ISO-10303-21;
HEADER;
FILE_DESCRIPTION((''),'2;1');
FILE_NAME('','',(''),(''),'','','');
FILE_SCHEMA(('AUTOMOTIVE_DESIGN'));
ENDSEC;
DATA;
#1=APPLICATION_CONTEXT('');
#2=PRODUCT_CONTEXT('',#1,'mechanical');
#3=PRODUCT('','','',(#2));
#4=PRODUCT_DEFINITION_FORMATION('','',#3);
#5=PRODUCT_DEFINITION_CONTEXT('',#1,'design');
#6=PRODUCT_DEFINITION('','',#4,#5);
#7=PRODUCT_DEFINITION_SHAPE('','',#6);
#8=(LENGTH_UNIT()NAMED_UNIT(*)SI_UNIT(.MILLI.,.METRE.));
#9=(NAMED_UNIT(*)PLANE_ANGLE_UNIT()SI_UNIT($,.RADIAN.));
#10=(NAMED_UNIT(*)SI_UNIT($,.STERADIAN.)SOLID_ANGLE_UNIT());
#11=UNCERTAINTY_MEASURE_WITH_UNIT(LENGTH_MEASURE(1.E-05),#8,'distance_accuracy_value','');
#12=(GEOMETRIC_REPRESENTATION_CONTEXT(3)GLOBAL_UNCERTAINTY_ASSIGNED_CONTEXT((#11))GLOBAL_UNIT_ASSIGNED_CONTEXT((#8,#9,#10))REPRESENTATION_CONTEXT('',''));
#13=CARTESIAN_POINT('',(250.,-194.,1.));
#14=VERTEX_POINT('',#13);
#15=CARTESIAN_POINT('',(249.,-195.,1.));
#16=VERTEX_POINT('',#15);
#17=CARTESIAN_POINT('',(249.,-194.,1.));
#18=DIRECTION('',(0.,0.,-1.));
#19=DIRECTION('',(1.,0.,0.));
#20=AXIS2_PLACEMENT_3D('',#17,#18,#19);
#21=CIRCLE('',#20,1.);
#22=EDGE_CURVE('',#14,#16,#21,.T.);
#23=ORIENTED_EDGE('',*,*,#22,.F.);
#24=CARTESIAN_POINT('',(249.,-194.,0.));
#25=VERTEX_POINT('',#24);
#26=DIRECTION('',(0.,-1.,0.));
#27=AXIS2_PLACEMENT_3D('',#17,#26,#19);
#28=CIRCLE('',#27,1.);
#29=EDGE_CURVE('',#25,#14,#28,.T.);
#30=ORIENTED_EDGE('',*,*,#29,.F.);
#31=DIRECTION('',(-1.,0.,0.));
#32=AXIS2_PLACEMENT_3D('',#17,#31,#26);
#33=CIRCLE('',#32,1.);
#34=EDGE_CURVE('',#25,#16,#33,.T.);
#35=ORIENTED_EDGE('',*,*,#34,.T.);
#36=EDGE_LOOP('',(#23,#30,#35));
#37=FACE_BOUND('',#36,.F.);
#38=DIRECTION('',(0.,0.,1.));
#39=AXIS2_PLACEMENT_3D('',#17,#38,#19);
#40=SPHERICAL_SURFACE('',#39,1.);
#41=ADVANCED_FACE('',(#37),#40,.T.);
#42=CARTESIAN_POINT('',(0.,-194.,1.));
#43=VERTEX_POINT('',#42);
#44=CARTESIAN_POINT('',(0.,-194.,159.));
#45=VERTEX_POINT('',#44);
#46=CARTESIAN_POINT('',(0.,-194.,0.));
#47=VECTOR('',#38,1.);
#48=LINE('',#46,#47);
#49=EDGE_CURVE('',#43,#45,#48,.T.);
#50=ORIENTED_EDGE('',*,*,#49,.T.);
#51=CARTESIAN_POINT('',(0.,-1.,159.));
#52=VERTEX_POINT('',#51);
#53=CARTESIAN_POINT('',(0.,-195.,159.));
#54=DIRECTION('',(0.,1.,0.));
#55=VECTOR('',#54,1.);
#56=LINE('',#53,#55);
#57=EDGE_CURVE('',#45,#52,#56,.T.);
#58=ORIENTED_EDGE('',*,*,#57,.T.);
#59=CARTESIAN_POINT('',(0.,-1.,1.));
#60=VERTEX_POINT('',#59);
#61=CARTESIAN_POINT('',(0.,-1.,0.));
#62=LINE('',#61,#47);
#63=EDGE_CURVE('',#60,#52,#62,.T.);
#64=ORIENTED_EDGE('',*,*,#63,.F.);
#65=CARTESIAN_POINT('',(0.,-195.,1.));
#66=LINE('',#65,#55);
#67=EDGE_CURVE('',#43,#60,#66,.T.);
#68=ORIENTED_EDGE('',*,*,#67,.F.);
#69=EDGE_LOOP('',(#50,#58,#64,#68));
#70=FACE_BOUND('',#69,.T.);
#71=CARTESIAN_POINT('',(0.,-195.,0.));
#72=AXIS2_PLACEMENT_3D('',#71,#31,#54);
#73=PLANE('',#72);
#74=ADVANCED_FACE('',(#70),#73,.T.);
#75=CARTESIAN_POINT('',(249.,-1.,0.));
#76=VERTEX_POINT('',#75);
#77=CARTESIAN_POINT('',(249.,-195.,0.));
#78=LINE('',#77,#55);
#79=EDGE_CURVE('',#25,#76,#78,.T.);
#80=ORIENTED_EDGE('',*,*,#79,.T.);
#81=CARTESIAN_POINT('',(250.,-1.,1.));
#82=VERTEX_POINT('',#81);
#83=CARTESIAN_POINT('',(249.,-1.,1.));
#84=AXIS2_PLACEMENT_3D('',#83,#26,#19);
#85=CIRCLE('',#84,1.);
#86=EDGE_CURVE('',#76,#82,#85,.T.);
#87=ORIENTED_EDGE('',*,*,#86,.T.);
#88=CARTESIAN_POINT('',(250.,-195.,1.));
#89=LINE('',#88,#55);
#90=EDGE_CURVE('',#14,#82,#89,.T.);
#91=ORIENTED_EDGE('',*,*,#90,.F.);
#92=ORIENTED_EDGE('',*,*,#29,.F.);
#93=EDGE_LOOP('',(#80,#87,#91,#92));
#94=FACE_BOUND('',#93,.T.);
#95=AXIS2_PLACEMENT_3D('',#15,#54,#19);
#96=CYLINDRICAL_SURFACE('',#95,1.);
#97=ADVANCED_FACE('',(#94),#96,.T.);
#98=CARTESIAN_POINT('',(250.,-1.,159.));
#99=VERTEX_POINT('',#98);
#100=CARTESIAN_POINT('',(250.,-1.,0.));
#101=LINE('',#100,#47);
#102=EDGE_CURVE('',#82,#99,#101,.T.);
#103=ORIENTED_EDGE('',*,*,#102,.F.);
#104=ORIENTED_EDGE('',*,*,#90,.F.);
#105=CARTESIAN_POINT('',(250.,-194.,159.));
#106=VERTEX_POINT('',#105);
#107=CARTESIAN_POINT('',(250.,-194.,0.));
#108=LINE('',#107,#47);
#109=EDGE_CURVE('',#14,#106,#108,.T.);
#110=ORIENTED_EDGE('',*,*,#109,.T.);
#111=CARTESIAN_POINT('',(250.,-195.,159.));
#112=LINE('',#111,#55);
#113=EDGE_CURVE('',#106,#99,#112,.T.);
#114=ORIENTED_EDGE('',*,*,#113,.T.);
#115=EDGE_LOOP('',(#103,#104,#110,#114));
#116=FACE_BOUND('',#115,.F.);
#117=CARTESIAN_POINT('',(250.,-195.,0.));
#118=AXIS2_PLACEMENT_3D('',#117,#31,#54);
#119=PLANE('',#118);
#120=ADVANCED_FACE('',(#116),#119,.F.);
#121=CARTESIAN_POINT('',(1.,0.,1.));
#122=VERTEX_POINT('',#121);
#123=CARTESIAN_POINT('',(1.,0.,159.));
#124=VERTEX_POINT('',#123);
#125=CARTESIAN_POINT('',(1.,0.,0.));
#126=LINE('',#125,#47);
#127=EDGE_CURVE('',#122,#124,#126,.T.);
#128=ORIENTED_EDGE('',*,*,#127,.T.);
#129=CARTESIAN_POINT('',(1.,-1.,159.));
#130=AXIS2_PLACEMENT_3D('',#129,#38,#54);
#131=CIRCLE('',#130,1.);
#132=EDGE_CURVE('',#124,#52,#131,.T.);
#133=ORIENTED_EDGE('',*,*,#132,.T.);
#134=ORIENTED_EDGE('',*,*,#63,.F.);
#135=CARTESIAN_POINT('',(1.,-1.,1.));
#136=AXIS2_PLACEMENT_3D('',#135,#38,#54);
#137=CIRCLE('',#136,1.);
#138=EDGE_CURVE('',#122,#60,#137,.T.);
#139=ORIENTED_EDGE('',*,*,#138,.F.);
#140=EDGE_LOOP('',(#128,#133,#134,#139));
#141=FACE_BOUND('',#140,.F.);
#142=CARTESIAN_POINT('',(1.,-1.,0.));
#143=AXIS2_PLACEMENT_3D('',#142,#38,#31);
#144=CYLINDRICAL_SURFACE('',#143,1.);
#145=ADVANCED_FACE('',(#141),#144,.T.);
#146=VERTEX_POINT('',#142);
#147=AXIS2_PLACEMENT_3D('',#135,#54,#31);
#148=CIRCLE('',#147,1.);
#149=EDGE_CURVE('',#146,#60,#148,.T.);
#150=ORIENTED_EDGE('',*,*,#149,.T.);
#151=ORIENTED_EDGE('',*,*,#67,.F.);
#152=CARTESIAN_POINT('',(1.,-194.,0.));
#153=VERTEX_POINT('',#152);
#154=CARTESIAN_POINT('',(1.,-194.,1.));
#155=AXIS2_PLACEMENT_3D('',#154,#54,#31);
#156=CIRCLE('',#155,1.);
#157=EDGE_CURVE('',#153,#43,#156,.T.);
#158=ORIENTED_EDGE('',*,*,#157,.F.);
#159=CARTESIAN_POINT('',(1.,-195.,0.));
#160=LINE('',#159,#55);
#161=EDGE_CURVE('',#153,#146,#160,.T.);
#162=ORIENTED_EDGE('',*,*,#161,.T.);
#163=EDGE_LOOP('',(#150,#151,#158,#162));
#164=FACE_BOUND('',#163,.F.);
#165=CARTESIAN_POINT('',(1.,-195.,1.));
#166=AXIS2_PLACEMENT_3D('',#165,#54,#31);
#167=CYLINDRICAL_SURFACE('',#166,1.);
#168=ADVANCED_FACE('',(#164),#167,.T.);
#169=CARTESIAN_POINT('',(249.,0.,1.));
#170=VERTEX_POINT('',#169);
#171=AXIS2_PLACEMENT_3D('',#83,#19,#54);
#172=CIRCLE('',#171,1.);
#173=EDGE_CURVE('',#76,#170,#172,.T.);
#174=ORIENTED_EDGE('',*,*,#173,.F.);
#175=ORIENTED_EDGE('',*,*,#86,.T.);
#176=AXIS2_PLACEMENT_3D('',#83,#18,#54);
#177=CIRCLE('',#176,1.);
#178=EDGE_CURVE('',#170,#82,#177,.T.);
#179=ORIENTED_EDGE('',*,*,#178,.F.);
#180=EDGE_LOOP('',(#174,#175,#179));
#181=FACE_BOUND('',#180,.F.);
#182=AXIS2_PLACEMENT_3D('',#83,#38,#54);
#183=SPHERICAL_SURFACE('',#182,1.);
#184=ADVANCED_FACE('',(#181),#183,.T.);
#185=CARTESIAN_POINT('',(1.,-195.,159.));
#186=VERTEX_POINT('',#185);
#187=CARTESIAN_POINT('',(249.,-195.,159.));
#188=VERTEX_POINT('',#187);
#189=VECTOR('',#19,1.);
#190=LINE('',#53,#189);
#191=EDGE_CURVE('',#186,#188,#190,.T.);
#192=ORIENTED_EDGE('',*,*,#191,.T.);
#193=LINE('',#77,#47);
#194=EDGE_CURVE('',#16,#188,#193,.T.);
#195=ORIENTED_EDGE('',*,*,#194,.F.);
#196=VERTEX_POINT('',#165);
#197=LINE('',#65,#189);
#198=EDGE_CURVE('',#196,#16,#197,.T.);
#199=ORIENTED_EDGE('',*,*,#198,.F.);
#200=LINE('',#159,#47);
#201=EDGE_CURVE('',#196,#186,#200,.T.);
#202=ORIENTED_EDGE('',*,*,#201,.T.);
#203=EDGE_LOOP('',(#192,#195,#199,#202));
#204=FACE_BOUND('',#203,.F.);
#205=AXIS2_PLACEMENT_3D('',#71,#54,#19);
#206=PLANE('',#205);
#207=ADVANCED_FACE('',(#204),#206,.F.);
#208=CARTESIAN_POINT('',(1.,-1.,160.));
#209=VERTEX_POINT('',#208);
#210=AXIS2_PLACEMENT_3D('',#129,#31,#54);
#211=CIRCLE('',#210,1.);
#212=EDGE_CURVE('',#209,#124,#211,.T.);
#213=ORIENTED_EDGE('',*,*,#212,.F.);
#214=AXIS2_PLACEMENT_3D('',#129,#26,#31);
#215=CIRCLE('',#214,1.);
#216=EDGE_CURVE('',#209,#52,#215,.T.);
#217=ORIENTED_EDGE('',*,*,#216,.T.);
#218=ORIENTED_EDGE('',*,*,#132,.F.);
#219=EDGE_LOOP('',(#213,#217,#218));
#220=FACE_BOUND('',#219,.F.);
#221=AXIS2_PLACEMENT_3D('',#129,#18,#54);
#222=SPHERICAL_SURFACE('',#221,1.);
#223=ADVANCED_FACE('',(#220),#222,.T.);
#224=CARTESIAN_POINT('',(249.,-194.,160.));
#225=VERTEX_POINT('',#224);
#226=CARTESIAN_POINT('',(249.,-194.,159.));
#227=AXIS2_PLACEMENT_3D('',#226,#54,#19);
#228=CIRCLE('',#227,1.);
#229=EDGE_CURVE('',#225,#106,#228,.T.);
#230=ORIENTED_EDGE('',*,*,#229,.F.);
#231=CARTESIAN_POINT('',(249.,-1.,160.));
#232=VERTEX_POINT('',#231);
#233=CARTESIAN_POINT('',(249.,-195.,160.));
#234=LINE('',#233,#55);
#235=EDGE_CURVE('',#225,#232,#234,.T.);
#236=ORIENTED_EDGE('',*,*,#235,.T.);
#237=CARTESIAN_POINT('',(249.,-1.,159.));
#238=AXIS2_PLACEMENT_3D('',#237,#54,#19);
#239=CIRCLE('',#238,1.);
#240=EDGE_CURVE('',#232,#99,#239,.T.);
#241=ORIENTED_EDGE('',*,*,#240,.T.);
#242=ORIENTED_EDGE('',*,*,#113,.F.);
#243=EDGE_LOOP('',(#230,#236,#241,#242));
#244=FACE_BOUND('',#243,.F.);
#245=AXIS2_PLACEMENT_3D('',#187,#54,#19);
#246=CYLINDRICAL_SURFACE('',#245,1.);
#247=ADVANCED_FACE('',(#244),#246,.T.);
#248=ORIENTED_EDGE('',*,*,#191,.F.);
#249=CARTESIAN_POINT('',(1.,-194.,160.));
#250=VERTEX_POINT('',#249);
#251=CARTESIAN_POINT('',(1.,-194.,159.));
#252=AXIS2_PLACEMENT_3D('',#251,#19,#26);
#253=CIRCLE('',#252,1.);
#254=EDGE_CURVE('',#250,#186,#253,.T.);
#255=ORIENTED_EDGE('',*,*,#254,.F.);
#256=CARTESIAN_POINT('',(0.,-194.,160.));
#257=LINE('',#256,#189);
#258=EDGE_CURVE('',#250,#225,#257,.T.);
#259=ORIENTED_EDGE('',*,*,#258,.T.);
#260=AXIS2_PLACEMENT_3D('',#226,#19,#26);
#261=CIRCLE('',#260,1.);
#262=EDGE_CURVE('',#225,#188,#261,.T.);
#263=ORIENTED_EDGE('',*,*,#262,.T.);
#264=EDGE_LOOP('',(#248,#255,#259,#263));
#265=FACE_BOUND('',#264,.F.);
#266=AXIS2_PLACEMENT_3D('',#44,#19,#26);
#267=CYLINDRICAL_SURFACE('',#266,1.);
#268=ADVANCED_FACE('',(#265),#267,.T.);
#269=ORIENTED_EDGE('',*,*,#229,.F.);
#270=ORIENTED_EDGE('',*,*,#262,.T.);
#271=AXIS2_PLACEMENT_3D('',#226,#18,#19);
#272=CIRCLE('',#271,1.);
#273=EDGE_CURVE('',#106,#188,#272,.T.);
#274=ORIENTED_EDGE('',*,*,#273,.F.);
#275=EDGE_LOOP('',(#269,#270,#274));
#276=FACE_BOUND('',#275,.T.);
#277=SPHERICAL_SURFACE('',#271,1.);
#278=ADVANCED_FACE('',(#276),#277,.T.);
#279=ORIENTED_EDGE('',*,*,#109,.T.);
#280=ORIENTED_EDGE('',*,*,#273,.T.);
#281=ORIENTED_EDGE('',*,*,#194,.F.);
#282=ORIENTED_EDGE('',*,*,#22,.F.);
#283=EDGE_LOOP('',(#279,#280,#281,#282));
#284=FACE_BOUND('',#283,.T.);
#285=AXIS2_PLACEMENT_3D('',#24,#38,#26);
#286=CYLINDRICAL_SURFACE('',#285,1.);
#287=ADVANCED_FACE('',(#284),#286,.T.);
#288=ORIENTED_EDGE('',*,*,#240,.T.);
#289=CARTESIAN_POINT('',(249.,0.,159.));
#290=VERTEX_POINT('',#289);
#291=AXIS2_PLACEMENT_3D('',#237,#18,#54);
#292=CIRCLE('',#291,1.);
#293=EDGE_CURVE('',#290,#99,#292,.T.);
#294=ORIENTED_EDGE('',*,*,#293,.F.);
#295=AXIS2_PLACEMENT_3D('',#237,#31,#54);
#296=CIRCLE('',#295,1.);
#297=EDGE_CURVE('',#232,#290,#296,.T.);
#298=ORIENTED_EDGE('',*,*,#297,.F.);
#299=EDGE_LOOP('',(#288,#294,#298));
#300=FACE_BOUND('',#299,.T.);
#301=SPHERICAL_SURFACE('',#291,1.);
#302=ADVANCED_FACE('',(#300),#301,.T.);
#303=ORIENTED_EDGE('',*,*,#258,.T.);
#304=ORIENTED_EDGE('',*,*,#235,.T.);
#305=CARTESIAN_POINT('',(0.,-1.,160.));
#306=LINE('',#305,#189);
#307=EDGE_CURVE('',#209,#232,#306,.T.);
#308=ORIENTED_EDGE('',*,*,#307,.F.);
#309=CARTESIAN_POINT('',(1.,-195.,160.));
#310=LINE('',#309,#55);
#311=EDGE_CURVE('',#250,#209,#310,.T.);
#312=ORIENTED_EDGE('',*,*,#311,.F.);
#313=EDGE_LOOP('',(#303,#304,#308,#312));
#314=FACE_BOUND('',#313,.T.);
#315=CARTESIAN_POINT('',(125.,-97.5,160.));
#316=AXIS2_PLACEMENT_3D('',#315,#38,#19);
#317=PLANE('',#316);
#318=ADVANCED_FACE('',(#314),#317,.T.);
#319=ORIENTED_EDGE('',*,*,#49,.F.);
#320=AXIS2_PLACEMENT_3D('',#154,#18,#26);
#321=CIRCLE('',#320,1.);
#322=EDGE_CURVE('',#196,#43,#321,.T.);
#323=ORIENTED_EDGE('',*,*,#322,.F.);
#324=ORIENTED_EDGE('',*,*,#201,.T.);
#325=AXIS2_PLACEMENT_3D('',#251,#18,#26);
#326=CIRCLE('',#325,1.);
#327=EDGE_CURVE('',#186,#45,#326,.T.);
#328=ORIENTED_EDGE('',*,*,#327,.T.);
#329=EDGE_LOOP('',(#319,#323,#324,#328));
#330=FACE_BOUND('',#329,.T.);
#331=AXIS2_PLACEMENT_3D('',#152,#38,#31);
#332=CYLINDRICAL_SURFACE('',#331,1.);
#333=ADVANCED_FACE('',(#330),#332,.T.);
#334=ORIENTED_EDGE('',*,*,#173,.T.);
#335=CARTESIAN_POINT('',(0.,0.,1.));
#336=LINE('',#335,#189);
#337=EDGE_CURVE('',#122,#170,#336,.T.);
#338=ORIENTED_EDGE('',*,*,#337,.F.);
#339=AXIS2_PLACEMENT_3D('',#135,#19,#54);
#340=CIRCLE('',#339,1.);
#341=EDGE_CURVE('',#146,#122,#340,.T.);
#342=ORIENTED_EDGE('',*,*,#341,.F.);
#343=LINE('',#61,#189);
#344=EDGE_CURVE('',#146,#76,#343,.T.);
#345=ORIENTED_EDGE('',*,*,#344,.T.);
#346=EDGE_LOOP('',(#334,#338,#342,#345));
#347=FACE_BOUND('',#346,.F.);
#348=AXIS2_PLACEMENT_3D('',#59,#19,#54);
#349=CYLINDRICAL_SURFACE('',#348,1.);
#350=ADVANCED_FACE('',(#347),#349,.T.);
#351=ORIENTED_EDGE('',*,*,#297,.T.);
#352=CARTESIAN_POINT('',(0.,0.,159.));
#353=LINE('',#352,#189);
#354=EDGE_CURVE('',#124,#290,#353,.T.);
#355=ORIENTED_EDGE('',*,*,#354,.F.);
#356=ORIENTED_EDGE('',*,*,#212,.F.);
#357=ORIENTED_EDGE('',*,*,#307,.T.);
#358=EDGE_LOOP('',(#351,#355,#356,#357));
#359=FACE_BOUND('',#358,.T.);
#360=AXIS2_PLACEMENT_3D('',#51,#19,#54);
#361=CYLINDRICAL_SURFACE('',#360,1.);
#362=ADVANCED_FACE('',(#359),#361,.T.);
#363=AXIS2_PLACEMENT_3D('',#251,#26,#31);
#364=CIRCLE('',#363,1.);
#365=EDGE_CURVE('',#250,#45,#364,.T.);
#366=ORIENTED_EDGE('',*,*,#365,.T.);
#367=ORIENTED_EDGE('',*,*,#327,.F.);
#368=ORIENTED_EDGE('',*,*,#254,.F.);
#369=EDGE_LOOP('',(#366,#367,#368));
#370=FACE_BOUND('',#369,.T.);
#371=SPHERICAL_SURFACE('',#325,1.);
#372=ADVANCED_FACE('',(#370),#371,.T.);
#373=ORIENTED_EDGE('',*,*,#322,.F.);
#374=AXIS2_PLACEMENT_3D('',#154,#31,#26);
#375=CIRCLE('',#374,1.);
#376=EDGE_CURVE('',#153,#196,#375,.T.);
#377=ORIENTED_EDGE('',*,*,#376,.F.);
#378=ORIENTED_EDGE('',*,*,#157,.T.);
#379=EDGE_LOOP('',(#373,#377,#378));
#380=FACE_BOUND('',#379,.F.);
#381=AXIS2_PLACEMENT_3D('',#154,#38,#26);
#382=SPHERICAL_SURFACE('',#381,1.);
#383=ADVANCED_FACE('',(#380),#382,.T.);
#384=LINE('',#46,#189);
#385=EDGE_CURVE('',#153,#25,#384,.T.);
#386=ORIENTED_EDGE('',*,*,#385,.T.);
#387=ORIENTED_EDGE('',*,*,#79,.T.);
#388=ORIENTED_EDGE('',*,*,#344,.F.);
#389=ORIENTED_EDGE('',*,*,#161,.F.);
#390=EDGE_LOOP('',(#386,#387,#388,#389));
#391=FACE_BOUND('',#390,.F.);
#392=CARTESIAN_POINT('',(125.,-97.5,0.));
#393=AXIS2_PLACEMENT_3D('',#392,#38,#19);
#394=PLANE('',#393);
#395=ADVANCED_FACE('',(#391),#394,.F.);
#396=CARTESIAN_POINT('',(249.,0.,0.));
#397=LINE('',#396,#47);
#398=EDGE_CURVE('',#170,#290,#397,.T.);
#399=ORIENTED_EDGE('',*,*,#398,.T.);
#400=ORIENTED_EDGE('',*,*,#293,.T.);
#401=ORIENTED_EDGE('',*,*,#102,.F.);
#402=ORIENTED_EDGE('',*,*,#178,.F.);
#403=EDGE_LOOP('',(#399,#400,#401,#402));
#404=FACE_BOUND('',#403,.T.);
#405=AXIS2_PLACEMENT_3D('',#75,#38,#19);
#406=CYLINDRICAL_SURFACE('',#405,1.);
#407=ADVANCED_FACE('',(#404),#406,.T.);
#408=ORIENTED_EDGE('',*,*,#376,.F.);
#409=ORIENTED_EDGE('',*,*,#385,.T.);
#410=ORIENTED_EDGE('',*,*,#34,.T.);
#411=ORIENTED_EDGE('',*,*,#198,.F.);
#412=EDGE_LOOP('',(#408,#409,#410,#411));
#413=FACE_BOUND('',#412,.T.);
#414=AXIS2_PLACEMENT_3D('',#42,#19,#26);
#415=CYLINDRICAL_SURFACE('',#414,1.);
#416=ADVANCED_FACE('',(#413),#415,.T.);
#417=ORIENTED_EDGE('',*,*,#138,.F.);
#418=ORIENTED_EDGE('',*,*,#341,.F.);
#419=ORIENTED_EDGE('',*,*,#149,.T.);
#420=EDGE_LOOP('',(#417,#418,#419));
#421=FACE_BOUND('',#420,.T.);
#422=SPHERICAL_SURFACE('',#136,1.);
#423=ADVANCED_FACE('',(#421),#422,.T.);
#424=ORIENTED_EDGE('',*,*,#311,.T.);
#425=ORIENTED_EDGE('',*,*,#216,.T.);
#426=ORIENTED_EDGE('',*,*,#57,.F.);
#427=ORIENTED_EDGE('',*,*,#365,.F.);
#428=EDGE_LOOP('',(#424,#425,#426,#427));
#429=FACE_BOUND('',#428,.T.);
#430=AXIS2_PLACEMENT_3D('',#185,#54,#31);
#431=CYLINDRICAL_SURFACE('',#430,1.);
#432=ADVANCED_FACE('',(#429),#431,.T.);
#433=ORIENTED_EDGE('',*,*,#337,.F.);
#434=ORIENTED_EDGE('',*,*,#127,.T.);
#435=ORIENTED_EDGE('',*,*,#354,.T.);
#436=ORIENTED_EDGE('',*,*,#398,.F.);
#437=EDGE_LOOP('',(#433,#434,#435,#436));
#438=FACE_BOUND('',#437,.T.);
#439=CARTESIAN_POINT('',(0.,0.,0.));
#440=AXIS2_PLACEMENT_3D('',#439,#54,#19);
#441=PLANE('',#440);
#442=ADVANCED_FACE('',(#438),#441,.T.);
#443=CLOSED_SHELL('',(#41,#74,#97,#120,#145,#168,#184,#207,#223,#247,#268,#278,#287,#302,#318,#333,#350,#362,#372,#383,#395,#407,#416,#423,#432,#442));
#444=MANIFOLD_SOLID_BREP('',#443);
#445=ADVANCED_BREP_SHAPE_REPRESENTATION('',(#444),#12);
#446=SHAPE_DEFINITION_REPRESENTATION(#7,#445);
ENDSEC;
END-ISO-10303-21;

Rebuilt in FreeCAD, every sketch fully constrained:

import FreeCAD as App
import Part
import Sketcher
from FreeCAD import Vector


def add_polygon(sketch, points):
    """Adds a closed chain of lines whose ends are joined by coincident constraints."""
    first, n = sketch.GeometryCount, len(points)
    for a, b in zip(points, points[1:] + points[:1]):
        sketch.addGeometry(Part.LineSegment(App.Vector(*a, 0), App.Vector(*b, 0)), False)
    for i in range(n):
        sketch.addConstraint(Sketcher.Constraint("Coincident", first + i, 2, first + (i + 1) % n, 1))

doc = App.newDocument("Part")
body = doc.addObject("PartDesign::Body", "Body")

sketch1 = body.newObject("Sketcher::SketchObject", "Sketch")
sketch1.AttachmentSupport = (doc.getObject("XY_Plane"), [""])
sketch1.MapMode = "FlatFace"
add_polygon(sketch1, [(0, 0), (0, -195), (250, -195), (250, 0)])
sketch1.addConstraint(Sketcher.Constraint("Vertical", 0))
sketch1.addConstraint(Sketcher.Constraint("Horizontal", 1))
sketch1.addConstraint(Sketcher.Constraint("Vertical", 2))
sketch1.addConstraint(Sketcher.Constraint("Horizontal", 3))
sketch1.addConstraint(Sketcher.Constraint("Coincident", 3, 2, -1, 1))
sketch1.addConstraint(Sketcher.Constraint("DistanceX", 1, 1, 1, 2, 250.0))
sketch1.addConstraint(Sketcher.Constraint("DistanceY", 0, 2, 0, 1, 195.0))
pad1 = body.newObject("PartDesign::Pad", "Pad")
pad1.Profile = sketch1
pad1.Length = 160
doc.recompute()

fillet = body.newObject("PartDesign::Fillet", "Fillet")
fillet.Base = (pad1, ["Edge1"])
fillet.UseAllEdges = True
fillet.Radius = 1

doc.recompute()
